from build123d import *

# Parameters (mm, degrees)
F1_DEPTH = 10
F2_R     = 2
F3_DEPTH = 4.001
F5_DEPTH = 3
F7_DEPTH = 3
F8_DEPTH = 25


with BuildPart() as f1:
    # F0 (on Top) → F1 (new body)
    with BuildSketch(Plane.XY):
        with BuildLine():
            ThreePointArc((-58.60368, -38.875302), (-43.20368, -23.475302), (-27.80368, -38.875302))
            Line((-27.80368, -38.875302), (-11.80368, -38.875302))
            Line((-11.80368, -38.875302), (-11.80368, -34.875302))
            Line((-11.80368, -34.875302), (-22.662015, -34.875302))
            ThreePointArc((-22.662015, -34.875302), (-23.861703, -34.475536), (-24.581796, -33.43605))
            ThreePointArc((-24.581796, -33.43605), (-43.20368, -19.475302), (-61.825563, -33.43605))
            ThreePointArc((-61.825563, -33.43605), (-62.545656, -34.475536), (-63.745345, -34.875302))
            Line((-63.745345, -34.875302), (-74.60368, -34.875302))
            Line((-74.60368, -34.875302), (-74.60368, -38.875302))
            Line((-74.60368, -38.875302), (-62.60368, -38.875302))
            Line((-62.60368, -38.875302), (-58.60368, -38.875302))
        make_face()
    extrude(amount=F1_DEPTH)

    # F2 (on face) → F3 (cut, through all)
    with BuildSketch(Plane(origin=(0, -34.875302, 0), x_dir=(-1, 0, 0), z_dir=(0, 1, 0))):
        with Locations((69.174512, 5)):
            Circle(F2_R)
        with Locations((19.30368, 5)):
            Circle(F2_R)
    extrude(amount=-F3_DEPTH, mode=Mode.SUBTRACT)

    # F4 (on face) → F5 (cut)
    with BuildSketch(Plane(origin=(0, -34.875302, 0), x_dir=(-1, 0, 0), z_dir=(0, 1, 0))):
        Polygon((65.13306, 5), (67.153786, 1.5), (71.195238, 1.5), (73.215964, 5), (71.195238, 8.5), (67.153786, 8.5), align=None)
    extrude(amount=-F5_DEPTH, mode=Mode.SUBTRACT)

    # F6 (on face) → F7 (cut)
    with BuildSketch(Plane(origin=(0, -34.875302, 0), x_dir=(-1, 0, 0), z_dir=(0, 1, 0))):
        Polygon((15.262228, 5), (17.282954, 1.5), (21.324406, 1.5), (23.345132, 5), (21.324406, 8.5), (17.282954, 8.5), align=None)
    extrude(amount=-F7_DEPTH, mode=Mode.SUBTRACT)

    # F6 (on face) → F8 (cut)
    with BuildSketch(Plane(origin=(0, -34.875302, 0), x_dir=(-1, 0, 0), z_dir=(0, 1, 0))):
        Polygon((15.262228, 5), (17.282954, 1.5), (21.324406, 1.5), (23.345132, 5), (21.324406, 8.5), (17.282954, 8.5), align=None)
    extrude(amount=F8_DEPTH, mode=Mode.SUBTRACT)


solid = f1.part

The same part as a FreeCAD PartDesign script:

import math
import FreeCAD as App
import Part
import Sketcher

V = App.Vector
Q = App.Units.Quantity


def add_polygon(sketch, points):
    """Adds a closed chain of lines whose ends are joined by coincident constraints."""
    first, n = sketch.GeometryCount, len(points)
    for a, b in zip(points, points[1:] + points[:1]):
        sketch.addGeometry(Part.LineSegment(App.Vector(*a, 0), App.Vector(*b, 0)), False)
    for i in range(n):
        sketch.addConstraint(Sketcher.Constraint("Coincident", first + i, 2, first + (i + 1) % n, 1))

doc = App.newDocument("Part")
body = doc.addObject("PartDesign::Body", "Body")

# Sketch on XY plane
sketch1 = body.newObject("Sketcher::SketchObject", "Sketch")
sketch1.AttachmentSupport = (doc.getObject("XY_Plane"), [""])
sketch1.MapMode = "FlatFace"
sketch1.addGeometry(Part.ArcOfCircle(Part.Circle(V(-43.2, -38.9, 0), V(0, 0, 1), 15.4), math.radians(0), math.radians(180)), False)
sketch1.addGeometry(Part.LineSegment(V(-27.8, -38.9, 0), V(-11.8, -38.9, 0)), False)
sketch1.addGeometry(Part.LineSegment(V(-11.8, -38.9, 0), V(-11.8, -34.9, 0)), False)
sketch1.addGeometry(Part.LineSegment(V(-11.8, -34.9, 0), V(-22.7, -34.9, 0)), False)
sketch1.addGeometry(Part.ArcOfCircle(Part.Circle(V(-22.7, -32.9, 0), V(0, 0, 1), 2), math.radians(-164), math.radians(-90)), False)
sketch1.addGeometry(Part.ArcOfCircle(Part.Circle(V(-43.2, -38.9, 0), V(0, 0, 1), 19.4), math.radians(16), math.radians(164)), False)
sketch1.addGeometry(Part.ArcOfCircle(Part.Circle(V(-63.7, -32.9, 0), V(0, 0, 1), 2), math.radians(-90), math.radians(-16)), False)
sketch1.addGeometry(Part.LineSegment(V(-63.7, -34.9, 0), V(-74.6, -34.9, 0)), False)
sketch1.addGeometry(Part.LineSegment(V(-74.6, -34.9, 0), V(-74.6, -38.9, 0)), False)
sketch1.addGeometry(Part.LineSegment(V(-74.6, -38.9, 0), V(-58.6, -38.9, 0)), False)
sketch1.addConstraint(Sketcher.Constraint("Coincident", 0, 1, 1, 1))
sketch1.addConstraint(Sketcher.Constraint("Coincident", 1, 2, 2, 1))
sketch1.addConstraint(Sketcher.Constraint("Coincident", 2, 2, 3, 1))
sketch1.addConstraint(Sketcher.Constraint("Tangent", 3, 2, 4, 2))
sketch1.addConstraint(Sketcher.Constraint("Tangent", 4, 1, 5, 1))
sketch1.addConstraint(Sketcher.Constraint("Tangent", 5, 2, 6, 2))
sketch1.addConstraint(Sketcher.Constraint("Tangent", 6, 1, 7, 1))
sketch1.addConstraint(Sketcher.Constraint("Coincident", 7, 2, 8, 1))
sketch1.addConstraint(Sketcher.Constraint("Coincident", 8, 2, 9, 1))
sketch1.addConstraint(Sketcher.Constraint("Coincident", 9, 2, 0, 2))
sketch1.addConstraint(Sketcher.Constraint("Horizontal", 1))
sketch1.addConstraint(Sketcher.Constraint("Vertical", 2))
sketch1.addConstraint(Sketcher.Constraint("Horizontal", 3))
sketch1.addConstraint(Sketcher.Constraint("Horizontal", 7))
sketch1.addConstraint(Sketcher.Constraint("Vertical", 8))
sketch1.addConstraint(Sketcher.Constraint("Horizontal", 9))
sketch1.addConstraint(Sketcher.Constraint("Coincident", 5, 3, 0, 3))
sketch1.addConstraint(Sketcher.Constraint("Equal", 4, 6))
sketch1.addConstraint(Sketcher.Constraint("Horizontal", 4, 3, 6, 3))
sketch1.addConstraint(Sketcher.Constraint("Horizontal", 5, 3, 0, 1))
sketch1.addConstraint(Sketcher.Constraint("Horizontal", 1, 2, 8, 2))
sketch1.addConstraint(Sketcher.Constraint("Equal", 3, 7))
sketch1.addConstraint(Sketcher.Constraint("Radius", 4, 1.999998))
sketch1.addConstraint(Sketcher.Constraint("Radius", 0, 15.4))
sketch1.addConstraint(Sketcher.Constraint("Radius", 5, 19.4))
sketch1.addConstraint(Sketcher.Constraint("DistanceX", 1, 1, 1, 2, 16.0))
sketch1.addConstraint(Sketcher.Constraint("DistanceY", 2, 1, 2, 2, 4.0))
sketch1.addConstraint(Sketcher.Constraint("DistanceY", 0, 3, -1, 1, 38.875302))
sketch1.addConstraint(Sketcher.Constraint("DistanceX", 0, 3, -1, 1, 43.20368))
pad1 = body.newObject("PartDesign::Pad", "Pad")
pad1.Profile = sketch1
pad1.Length = 10

# Sketch on XZ plane
sketch2 = body.newObject("Sketcher::SketchObject", "Sketch001")
sketch2.AttachmentSupport = (doc.getObject("XZ_Plane"), [""])
sketch2.MapMode = "FlatFace"
sketch2.AttachmentOffset = App.Placement(V(0, 0, 34.875302), App.Rotation())
sketch2.addGeometry(Part.Circle(V(-69.2, 5, 0), V(0, 0, 1), 2), False)
sketch2.addGeometry(Part.Circle(V(-19.3, 5, 0), V(0, 0, 1), 2), False)
sketch2.addConstraint(Sketcher.Constraint("Equal", 0, 1))
sketch2.addConstraint(Sketcher.Constraint("Horizontal", 0, 3, 1, 3))
sketch2.addConstraint(Sketcher.Constraint("Diameter", 0, 4.0))
sketch2.addConstraint(Sketcher.Constraint("DistanceY", -1, 1, 0, 3, 5.0))
sketch2.addConstraint(Sketcher.Constraint("DistanceX", 0, 3, -1, 1, 69.174512))
sketch2.addConstraint(Sketcher.Constraint("DistanceX", 1, 3, -1, 1, 19.30368))
pocket1 = body.newObject("PartDesign::Pocket", "Pocket")
pocket1.Profile = sketch2
pocket1.Type = "ThroughAll"
pocket1.Reversed = True

# Sketch on XZ plane
sketch3 = body.newObject("Sketcher::SketchObject", "Sketch002")
sketch3.AttachmentSupport = (doc.getObject("XZ_Plane"), [""])
sketch3.MapMode = "FlatFace"
sketch3.AttachmentOffset = App.Placement(V(0, 0, 34.875302), App.Rotation())
add_polygon(sketch3, [(-65.1, 5), (-67.2, 1.5), (-71.2, 1.5), (-73.2, 5), (-71.2, 8.5), (-67.2, 8.5)])  # lines 0-5
sketch3.addConstraint(Sketcher.Constraint("Horizontal", 1))
sketch3.addConstraint(Sketcher.Constraint("Horizontal", 4))
sketch3.addConstraint(Sketcher.Constraint("Parallel", 0, 3))
sketch3.addConstraint(Sketcher.Constraint("Parallel", 2, 5))
sketch3.addConstraint(Sketcher.Constraint("Horizontal", 2, 2, 5, 2))
sketch3.addConstraint(Sketcher.Constraint("Vertical", 1, 2, 3, 2))
sketch3.addConstraint(Sketcher.Constraint("Vertical", 0, 2, 4, 2))
sketch3.addConstraint(Sketcher.Constraint("Angle", 0, Q("-120.000001 deg")))
sketch3.addConstraint(Sketcher.Constraint("DistanceY", -1, 1, 2, 2, 5.0))
sketch3.addConstraint(Sketcher.Constraint("DistanceY", 1, 2, 3, 2, 7.0))
sketch3.addConstraint(Sketcher.Constraint("DistanceX", 1, 2, 1, 1, 4.041452))
sketch3.addConstraint(Sketcher.Constraint("DistanceX", 1, 2, -1, 1, 71.195238))
pocket2 = body.newObject("PartDesign::Pocket", "Pocket001")
pocket2.Profile = sketch3
pocket2.Length = 3
pocket2.Reversed = True

# Sketch on XZ plane
sketch4 = body.newObject("Sketcher::SketchObject", "Sketch003")
sketch4.AttachmentSupport = (doc.getObject("XZ_Plane"), [""])
sketch4.MapMode = "FlatFace"
sketch4.AttachmentOffset = App.Placement(V(0, 0, 34.875302), App.Rotation())
add_polygon(sketch4, [(-15.3, 5), (-17.3, 1.5), (-21.3, 1.5), (-23.3, 5), (-21.3, 8.5), (-17.3, 8.5)])  # lines 0-5
sketch4.addConstraint(Sketcher.Constraint("Horizontal", 1))
sketch4.addConstraint(Sketcher.Constraint("Horizontal", 4))
sketch4.addConstraint(Sketcher.Constraint("Parallel", 0, 3))
sketch4.addConstraint(Sketcher.Constraint("Parallel", 2, 5))
sketch4.addConstraint(Sketcher.Constraint("Horizontal", 2, 2, 5, 2))
sketch4.addConstraint(Sketcher.Constraint("Vertical", 1, 2, 3, 2))
sketch4.addConstraint(Sketcher.Constraint("Vertical", 0, 2, 4, 2))
sketch4.addConstraint(Sketcher.Constraint("Angle", 0, Q("-120.000001 deg")))
sketch4.addConstraint(Sketcher.Constraint("DistanceY", -1, 1, 2, 2, 5.0))
sketch4.addConstraint(Sketcher.Constraint("DistanceY", 1, 2, 3, 2, 7.0))
sketch4.addConstraint(Sketcher.Constraint("DistanceX", 1, 2, 1, 1, 4.041452))
sketch4.addConstraint(Sketcher.Constraint("DistanceX", 2, 2, -1, 1, 23.345132))
pocket3 = body.newObject("PartDesign::Pocket", "Pocket002")
pocket3.Profile = sketch4
pocket3.Length = 3
pocket3.Reversed = True

# Sketch on XZ plane
sketch5 = body.newObject("Sketcher::SketchObject", "Sketch004")
sketch5.AttachmentSupport = (doc.getObject("XZ_Plane"), [""])
sketch5.MapMode = "FlatFace"
sketch5.AttachmentOffset = App.Placement(V(0, 0, 34.875302), App.Rotation())
add_polygon(sketch5, [(-15.3, 5), (-17.3, 1.5), (-21.3, 1.5), (-23.3, 5), (-21.3, 8.5), (-17.3, 8.5)])  # lines 0-5
sketch5.addConstraint(Sketcher.Constraint("Horizontal", 1))
sketch5.addConstraint(Sketcher.Constraint("Horizontal", 4))
sketch5.addConstraint(Sketcher.Constraint("Parallel", 0, 3))
sketch5.addConstraint(Sketcher.Constraint("Parallel", 2, 5))
sketch5.addConstraint(Sketcher.Constraint("Horizontal", 2, 2, 5, 2))
sketch5.addConstraint(Sketcher.Constraint("Vertical", 1, 2, 3, 2))
sketch5.addConstraint(Sketcher.Constraint("Vertical", 0, 2, 4, 2))
sketch5.addConstraint(Sketcher.Constraint("Angle", 0, Q("-120.000001 deg")))
sketch5.addConstraint(Sketcher.Constraint("DistanceY", -1, 1, 2, 2, 5.0))
sketch5.addConstraint(Sketcher.Constraint("DistanceY", 1, 2, 3, 2, 7.0))
sketch5.addConstraint(Sketcher.Constraint("DistanceX", 1, 2, 1, 1, 4.041452))
sketch5.addConstraint(Sketcher.Constraint("DistanceX", 2, 2, -1, 1, 23.345132))
pocket4 = body.newObject("PartDesign::Pocket", "Pocket003")
pocket4.Profile = sketch5
pocket4.Length = 25

doc.recompute()
